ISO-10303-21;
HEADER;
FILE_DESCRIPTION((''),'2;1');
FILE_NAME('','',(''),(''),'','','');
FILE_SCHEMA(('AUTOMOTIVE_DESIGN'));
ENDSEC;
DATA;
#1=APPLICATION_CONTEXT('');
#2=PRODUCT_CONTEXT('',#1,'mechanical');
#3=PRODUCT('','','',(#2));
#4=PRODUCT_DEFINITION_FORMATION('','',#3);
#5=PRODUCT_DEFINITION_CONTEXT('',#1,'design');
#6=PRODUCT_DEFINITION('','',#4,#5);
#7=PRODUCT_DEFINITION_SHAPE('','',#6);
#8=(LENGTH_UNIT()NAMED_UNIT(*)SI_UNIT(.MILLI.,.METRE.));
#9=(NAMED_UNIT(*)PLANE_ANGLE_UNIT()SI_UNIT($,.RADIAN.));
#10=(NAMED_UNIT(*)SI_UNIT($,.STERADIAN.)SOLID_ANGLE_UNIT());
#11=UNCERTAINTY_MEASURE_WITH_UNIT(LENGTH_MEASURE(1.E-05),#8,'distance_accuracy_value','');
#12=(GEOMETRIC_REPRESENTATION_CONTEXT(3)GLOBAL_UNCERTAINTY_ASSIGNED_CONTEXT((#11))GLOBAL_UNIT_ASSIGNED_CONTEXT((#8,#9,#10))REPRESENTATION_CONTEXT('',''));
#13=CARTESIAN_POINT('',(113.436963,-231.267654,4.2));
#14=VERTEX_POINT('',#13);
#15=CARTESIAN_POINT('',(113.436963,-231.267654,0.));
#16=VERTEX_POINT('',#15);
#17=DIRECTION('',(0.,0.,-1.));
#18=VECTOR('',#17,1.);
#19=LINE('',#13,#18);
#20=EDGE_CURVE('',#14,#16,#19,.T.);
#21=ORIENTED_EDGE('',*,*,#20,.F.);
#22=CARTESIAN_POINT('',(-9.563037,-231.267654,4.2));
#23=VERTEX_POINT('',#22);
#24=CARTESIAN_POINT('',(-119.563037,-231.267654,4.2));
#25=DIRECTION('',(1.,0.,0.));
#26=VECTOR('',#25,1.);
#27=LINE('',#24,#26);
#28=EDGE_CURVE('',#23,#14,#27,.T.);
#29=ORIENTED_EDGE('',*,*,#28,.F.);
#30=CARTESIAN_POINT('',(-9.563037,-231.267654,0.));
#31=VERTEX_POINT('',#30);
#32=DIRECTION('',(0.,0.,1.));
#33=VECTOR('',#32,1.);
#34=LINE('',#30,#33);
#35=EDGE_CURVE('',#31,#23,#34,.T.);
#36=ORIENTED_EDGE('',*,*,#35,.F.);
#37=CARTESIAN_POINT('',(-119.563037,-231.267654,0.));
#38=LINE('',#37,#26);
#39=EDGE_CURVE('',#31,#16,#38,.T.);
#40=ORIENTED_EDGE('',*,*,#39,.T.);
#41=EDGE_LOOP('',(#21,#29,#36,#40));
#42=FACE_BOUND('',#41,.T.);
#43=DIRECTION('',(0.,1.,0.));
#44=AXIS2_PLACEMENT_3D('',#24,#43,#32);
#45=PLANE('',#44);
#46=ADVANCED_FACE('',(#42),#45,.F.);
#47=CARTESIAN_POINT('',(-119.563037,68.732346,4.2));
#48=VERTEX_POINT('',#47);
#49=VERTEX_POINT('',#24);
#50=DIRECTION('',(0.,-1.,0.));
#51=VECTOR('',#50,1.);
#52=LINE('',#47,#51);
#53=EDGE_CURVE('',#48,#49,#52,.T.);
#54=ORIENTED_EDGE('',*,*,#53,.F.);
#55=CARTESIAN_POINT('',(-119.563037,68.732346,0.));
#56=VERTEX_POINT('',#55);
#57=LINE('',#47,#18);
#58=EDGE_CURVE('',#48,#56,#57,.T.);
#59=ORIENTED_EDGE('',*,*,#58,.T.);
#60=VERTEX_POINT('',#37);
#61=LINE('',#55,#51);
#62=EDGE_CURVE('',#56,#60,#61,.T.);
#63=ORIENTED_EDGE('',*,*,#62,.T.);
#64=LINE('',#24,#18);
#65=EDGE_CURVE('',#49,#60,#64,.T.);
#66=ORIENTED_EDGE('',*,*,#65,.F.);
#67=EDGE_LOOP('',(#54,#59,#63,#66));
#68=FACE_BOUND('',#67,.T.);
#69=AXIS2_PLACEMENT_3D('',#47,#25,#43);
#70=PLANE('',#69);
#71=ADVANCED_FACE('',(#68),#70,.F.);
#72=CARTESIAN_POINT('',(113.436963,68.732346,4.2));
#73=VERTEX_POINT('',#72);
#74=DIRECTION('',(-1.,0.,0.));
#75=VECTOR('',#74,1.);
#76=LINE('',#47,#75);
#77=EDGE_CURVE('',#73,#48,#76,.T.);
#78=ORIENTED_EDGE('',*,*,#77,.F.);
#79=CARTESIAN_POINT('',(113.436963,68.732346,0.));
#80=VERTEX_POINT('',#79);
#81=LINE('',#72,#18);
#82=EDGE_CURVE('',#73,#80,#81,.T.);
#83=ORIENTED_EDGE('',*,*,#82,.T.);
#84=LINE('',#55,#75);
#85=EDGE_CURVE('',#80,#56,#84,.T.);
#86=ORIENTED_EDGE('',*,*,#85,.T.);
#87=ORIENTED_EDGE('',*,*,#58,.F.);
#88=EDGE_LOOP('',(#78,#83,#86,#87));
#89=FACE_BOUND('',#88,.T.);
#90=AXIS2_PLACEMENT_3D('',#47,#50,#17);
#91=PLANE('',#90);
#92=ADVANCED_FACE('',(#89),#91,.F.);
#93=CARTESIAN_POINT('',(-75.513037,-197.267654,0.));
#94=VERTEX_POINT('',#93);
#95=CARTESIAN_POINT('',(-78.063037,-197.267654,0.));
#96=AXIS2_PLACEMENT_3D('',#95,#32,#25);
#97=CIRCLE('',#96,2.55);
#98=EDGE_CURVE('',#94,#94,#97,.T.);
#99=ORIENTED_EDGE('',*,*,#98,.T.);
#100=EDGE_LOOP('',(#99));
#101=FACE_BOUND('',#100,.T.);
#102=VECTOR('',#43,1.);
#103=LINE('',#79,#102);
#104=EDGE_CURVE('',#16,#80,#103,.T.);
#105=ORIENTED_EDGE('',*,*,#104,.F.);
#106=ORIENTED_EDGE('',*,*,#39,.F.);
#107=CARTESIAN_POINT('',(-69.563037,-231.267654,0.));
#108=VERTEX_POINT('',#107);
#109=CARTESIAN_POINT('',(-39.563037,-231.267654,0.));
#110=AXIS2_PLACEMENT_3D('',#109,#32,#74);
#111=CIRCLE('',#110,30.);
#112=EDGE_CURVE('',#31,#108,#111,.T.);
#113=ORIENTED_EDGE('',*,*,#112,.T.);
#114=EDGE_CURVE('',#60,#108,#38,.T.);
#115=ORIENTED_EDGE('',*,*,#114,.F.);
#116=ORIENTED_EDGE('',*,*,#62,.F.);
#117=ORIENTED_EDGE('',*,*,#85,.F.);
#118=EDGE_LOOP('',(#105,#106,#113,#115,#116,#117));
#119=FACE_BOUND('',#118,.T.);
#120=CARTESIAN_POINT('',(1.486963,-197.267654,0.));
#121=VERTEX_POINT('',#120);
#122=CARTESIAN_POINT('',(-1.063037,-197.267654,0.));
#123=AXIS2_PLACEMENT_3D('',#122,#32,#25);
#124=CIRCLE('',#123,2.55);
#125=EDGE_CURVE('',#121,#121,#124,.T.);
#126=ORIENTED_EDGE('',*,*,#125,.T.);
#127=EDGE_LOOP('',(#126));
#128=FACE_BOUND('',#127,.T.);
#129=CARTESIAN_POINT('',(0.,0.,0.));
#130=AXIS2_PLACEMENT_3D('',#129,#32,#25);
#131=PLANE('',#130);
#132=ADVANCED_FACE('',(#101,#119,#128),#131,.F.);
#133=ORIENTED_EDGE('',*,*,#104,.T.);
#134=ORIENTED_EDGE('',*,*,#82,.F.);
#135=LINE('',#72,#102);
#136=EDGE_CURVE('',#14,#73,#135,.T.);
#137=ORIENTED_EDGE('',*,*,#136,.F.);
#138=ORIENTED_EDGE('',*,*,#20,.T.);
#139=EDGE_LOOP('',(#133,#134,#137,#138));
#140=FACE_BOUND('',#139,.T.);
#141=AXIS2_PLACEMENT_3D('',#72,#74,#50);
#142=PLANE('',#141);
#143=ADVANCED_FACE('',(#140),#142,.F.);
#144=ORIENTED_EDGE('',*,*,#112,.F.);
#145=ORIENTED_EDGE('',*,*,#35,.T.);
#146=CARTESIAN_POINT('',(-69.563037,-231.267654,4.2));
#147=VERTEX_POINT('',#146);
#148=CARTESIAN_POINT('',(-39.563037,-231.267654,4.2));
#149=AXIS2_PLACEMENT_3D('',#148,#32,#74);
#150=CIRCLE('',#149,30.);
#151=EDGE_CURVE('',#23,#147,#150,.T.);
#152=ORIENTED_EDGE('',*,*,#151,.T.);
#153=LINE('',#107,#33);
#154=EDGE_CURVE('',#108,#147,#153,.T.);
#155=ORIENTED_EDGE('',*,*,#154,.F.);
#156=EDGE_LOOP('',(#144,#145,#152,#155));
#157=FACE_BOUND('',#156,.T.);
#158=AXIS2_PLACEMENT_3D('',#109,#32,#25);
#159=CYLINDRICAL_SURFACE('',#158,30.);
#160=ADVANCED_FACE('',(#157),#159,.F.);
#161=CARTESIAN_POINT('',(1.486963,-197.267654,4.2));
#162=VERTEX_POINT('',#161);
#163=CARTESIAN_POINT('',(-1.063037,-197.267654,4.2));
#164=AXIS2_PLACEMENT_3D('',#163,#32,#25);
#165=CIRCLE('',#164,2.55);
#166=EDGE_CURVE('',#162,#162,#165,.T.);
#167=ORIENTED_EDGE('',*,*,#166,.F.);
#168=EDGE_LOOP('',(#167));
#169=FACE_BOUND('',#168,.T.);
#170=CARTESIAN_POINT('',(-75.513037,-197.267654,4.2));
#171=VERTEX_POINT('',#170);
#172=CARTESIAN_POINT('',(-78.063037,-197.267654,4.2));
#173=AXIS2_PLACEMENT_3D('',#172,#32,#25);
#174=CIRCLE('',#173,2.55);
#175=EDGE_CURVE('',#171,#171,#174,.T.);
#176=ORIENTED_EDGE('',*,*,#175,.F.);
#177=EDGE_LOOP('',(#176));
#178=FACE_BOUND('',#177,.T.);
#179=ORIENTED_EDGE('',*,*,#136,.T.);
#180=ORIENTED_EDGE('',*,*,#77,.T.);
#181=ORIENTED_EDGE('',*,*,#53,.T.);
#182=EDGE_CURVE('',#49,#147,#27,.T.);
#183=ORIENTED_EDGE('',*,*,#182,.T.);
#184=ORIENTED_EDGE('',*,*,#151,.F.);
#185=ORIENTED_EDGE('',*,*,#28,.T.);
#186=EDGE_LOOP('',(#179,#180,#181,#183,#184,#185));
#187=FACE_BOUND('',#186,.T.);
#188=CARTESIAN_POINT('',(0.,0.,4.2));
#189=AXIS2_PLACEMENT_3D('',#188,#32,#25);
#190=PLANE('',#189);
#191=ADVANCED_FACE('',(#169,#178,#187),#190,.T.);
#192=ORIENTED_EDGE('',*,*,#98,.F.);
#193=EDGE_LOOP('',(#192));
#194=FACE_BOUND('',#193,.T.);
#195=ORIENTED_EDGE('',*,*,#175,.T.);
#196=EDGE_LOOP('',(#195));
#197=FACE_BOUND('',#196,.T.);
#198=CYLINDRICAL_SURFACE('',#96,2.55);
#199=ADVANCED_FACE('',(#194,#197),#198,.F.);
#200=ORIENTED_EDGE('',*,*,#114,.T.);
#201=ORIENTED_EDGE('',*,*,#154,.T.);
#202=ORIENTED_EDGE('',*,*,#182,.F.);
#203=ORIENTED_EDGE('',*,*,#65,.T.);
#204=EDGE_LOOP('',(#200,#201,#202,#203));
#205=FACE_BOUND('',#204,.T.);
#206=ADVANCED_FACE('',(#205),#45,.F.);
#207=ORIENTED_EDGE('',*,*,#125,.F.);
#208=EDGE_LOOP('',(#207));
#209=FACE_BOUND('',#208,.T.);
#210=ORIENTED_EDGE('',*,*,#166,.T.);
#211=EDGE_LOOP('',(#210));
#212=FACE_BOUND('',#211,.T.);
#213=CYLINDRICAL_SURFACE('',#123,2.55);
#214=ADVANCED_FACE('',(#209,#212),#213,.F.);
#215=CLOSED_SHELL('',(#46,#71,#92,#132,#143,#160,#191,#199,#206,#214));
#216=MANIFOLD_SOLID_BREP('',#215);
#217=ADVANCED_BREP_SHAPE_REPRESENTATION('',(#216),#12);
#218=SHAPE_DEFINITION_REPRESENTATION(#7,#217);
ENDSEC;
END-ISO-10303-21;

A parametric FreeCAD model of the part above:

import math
import FreeCAD as App
import Part
import Sketcher

V = App.Vector
Q = App.Units.Quantity


def add_polygon(sketch, points):
    """Adds a closed chain of lines whose ends are joined by coincident constraints."""
    first, n = sketch.GeometryCount, len(points)
    for a, b in zip(points, points[1:] + points[:1]):
        sketch.addGeometry(Part.LineSegment(App.Vector(*a, 0), App.Vector(*b, 0)), False)
    for i in range(n):
        sketch.addConstraint(Sketcher.Constraint("Coincident", first + i, 2, first + (i + 1) % n, 1))

doc = App.newDocument("Part")
body = doc.addObject("PartDesign::Body", "Body")

sketch1 = doc.addObject("Sketcher::SketchObject", "Sketch")
body.addObject(sketch1)
sketch1.AttachmentSupport = (doc.XY_Plane, [""])
sketch1.MapMode = "FlatFace"
add_polygon(sketch1, [(-119.563037, 68.732346), (-119.563037, -231.267654), (113.436963, -231.267654), (113.436963, 68.732346)])
sketch1.addConstraint(Sketcher.Constraint("Vertical", 0))
sketch1.addConstraint(Sketcher.Constraint("Horizontal", 1))
sketch1.addConstraint(Sketcher.Constraint("Vertical", 2))
sketch1.addConstraint(Sketcher.Constraint("Horizontal", 3))
sketch1.addConstraint(Sketcher.Constraint("DistanceX", 1, 1, 1, 2, Q("233 mm")))
sketch1.addConstraint(Sketcher.Constraint("DistanceY", 0, 2, 0, 1, Q("300 mm")))
sketch1.addConstraint(Sketcher.Constraint("DistanceX", 0, 2, -1, 1, Q("119.563037 mm")))
sketch1.addConstraint(Sketcher.Constraint("DistanceY", 0, 2, -1, 1, Q("231.267654 mm")))
pad1 = doc.addObject("PartDesign::Pad", "Pad")
body.addObject(pad1)
pad1.Profile = sketch1
pad1.Length = 4.2

sketch2 = doc.addObject("Sketcher::SketchObject", "Sketch001")
body.addObject(sketch2)
sketch2.AttachmentSupport = (doc.XY_Plane, [""])
sketch2.MapMode = "FlatFace"
sketch2.AttachmentOffset = App.Placement(V(0, 0, 4.2), App.Rotation())
sketch2.addGeometry(Part.Circle(V(-78.063037, -197.267654, 0), V(0, 0, 1), 2.55), False)
sketch2.addGeometry(Part.Circle(V(-1.063037, -197.267654, 0), V(0, 0, 1), 2.55), False)
sketch2.addGeometry(Part.LineSegment(V(-69.563037, -231.267654, 0), V(-9.563037, -231.267654, 0)), False)
sketch2.addGeometry(Part.ArcOfCircle(Part.Circle(V(-39.563037, -231.267654, 0), V(0, 0, 1), 30), math.radians(0), math.radians(180)), False)
sketch2.addConstraint(Sketcher.Constraint("Coincident", 2, 1, 3, 2))
sketch2.addConstraint(Sketcher.Constraint("Coincident", 3, 1, 2, 2))
sketch2.addConstraint(Sketcher.Constraint("Horizontal", 2))
sketch2.addConstraint(Sketcher.Constraint("Equal", 0, 1))
sketch2.addConstraint(Sketcher.Constraint("Horizontal", 0, 3, 1, 3))
sketch2.addConstraint(Sketcher.Constraint("Horizontal", 3, 3, 2, 1))
sketch2.addConstraint(Sketcher.Constraint("Radius", 3, Q("30 mm")))
sketch2.addConstraint(Sketcher.Constraint("Diameter", 0, Q("5.1 mm")))
sketch2.addConstraint(Sketcher.Constraint("DistanceX", 0, 3, 1, 3, Q("77 mm")))
sketch2.addConstraint(Sketcher.Constraint("DistanceY", 3, 3, 0, 3, Q("34 mm")))
sketch2.addConstraint(Sketcher.Constraint("DistanceX", 0, 3, 3, 3, Q("38.5 mm")))
sketch2.addConstraint(Sketcher.Constraint("DistanceX", 0, 3, -1, 1, Q("78.063037 mm")))
sketch2.addConstraint(Sketcher.Constraint("DistanceY", 0, 3, -1, 1, Q("197.267654 mm")))
pocket1 = doc.addObject("PartDesign::Pocket", "Pocket")
body.addObject(pocket1)
pocket1.Profile = sketch2
pocket1.Type = "ThroughAll"

doc.recompute()
